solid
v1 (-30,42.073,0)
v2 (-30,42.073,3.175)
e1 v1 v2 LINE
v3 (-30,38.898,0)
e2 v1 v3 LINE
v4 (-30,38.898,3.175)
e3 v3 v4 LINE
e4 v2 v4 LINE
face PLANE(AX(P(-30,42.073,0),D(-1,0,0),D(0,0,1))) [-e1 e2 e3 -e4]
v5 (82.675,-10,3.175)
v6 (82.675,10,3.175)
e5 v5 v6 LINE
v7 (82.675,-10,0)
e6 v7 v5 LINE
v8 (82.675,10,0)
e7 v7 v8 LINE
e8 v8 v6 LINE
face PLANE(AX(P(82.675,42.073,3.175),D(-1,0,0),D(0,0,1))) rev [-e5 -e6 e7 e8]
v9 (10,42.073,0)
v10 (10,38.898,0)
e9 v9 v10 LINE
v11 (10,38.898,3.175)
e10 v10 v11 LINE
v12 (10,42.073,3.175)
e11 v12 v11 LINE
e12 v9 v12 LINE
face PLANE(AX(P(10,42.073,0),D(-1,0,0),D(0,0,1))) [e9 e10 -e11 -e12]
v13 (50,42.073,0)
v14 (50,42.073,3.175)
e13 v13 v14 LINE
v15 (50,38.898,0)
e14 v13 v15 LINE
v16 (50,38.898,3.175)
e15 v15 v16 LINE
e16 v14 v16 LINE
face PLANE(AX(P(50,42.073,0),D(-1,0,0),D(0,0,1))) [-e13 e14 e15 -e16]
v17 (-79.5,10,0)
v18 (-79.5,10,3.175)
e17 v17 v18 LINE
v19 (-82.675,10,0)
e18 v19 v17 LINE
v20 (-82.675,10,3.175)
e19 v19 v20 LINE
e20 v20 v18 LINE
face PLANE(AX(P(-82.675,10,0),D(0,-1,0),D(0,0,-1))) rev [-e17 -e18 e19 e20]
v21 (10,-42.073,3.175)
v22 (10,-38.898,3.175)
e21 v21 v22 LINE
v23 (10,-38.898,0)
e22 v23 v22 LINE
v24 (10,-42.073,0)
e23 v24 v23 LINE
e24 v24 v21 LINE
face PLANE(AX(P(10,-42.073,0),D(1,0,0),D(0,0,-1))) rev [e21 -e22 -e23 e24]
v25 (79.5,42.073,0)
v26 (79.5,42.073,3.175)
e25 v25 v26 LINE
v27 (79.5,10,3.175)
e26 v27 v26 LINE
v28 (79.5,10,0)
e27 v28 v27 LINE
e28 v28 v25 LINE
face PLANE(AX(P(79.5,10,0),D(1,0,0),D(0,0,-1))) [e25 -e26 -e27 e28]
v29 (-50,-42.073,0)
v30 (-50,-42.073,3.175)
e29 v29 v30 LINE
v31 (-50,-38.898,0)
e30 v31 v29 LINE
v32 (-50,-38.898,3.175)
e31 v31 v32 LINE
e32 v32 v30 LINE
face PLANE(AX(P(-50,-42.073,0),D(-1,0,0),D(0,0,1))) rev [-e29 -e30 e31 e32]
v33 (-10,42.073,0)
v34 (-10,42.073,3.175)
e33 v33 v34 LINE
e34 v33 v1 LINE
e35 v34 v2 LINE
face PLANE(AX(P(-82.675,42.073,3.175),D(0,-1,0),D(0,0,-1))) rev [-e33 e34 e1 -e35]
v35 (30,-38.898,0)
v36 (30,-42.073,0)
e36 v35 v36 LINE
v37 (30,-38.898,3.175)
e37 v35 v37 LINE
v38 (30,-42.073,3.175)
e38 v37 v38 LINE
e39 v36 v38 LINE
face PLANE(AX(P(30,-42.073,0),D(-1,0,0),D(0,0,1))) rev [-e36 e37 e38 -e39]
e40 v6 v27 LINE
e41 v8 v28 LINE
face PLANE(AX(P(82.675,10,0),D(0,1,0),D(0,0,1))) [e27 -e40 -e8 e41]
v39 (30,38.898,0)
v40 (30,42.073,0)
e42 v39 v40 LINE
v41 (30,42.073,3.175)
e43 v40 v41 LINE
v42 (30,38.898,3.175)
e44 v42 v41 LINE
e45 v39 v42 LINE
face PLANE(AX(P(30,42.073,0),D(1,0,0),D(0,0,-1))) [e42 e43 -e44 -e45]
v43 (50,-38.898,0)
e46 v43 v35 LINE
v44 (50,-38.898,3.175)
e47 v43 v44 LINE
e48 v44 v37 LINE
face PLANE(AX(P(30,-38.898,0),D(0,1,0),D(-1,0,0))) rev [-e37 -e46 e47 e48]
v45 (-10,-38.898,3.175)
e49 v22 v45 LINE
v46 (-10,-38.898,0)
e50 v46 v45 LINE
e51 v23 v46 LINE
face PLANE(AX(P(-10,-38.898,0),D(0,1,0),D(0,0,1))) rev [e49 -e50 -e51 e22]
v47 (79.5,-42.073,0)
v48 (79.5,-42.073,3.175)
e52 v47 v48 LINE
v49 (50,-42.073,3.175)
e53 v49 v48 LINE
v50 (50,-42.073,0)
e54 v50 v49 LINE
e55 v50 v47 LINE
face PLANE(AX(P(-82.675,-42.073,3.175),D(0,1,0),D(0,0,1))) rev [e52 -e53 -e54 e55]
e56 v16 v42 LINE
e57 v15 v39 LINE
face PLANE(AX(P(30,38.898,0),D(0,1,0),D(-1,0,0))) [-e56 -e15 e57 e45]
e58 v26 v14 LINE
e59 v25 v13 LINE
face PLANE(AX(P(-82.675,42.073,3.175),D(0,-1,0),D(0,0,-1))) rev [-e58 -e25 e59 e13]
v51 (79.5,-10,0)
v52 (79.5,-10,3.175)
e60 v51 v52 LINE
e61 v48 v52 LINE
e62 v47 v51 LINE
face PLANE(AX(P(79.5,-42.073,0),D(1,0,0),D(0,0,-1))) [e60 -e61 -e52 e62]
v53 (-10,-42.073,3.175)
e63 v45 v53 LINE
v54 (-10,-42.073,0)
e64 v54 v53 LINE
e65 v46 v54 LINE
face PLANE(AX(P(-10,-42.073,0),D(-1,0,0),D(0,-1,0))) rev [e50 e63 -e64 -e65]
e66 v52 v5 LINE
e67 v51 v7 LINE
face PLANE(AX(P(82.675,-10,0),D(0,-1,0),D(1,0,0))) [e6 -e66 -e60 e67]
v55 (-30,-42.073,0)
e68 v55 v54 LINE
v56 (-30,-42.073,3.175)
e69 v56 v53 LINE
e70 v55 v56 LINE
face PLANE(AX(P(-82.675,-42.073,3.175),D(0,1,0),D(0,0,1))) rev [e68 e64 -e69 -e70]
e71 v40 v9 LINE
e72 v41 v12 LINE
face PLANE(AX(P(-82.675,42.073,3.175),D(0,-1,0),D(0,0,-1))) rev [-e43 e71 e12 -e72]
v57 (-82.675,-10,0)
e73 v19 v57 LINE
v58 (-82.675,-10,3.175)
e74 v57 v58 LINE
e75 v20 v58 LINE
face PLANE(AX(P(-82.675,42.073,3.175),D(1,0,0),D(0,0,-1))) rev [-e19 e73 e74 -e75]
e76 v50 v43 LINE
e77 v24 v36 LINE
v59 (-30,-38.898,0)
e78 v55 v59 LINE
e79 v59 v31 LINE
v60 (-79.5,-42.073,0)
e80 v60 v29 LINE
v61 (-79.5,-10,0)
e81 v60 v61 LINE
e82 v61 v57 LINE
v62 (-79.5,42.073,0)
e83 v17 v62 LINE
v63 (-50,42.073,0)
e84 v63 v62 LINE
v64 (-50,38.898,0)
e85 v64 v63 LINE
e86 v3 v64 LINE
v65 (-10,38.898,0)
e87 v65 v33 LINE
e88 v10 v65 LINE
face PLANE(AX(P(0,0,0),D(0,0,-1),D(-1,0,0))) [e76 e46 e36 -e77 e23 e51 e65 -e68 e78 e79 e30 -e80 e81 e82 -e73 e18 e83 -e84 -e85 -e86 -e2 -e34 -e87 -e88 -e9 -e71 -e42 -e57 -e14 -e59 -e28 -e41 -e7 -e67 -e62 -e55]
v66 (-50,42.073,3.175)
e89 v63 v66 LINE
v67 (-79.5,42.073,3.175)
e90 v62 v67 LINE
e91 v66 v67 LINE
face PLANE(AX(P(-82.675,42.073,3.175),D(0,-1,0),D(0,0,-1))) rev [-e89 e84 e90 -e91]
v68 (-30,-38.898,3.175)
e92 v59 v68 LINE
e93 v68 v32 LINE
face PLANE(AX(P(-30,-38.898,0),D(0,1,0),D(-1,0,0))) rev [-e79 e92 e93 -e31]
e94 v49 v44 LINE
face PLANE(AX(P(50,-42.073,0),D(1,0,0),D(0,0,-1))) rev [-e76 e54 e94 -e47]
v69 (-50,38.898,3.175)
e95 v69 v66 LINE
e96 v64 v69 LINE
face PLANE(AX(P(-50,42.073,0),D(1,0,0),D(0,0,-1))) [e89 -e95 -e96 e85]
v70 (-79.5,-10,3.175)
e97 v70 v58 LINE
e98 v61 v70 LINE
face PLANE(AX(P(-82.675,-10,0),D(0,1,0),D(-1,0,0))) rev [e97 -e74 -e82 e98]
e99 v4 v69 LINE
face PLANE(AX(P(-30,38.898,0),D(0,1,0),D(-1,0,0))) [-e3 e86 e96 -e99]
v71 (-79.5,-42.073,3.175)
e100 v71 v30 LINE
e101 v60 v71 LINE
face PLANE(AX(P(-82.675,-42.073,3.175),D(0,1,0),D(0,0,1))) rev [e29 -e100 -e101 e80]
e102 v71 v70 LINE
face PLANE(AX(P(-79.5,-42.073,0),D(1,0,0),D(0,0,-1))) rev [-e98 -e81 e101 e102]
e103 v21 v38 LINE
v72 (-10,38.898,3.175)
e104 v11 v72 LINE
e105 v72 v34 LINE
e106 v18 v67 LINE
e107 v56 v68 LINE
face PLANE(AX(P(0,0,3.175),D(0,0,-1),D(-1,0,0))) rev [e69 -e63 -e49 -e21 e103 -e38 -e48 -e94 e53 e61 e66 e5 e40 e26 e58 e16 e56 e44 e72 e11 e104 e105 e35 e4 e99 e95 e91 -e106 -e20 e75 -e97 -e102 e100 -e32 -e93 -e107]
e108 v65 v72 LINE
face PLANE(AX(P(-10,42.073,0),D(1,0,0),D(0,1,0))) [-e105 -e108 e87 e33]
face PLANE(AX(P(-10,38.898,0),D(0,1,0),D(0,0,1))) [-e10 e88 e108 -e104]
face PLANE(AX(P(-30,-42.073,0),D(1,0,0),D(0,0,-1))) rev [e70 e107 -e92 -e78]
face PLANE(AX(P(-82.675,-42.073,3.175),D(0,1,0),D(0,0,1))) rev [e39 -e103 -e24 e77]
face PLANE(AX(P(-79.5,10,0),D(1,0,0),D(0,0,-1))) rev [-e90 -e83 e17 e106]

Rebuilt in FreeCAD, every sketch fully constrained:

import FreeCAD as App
import Part
import Sketcher
Q = App.Units.Quantity

doc = App.newDocument("Part")
body = doc.addObject("PartDesign::Body", "Body")

# Sketch on XY plane
sketch1 = body.newObject("Sketcher::SketchObject", "Sketch")
sketch1.AttachmentSupport = (doc.getObject("XY_Plane"), [""])
sketch1.MapMode = "FlatFace"
sketch1.addGeometry([
    Part.LineSegment(App.Vector(-83, 42, 0), App.Vector(-83, -42, 0)),
    Part.LineSegment(App.Vector(-83, -42, 0), App.Vector(83, -42, 0)),
    Part.LineSegment(App.Vector(83, -42, 0), App.Vector(83, 42, 0)),
    Part.LineSegment(App.Vector(83, 42, 0), App.Vector(-83, 42, 0)),
], False)
sketch1.addConstraint([
    Sketcher.Constraint("Coincident", 0, 2, 1, 1),
    Sketcher.Constraint("Coincident", 1, 2, 2, 1),
    Sketcher.Constraint("Coincident", 2, 2, 3, 1),
    Sketcher.Constraint("Coincident", 3, 2, 0, 1),
    Sketcher.Constraint("Vertical", 0),
    Sketcher.Constraint("Horizontal", 1),
    Sketcher.Constraint("Vertical", 2),
    Sketcher.Constraint("Horizontal", 3),
    Sketcher.Constraint("Symmetric", 0, 2, 2, 2, -1, 1),
    Sketcher.Constraint("DistanceX", 1, 1, 1, 2, Q("165.35 mm")),
    Sketcher.Constraint("DistanceY", 0, 2, 0, 1, Q("84.146 mm")),
])
pad1 = body.newObject("PartDesign::Pad", "Pad")
pad1.Profile = sketch1
pad1.Length = 3.175

# Sketch on XY plane
sketch2 = body.newObject("Sketcher::SketchObject", "Sketch001")
sketch2.AttachmentSupport = (doc.getObject("XY_Plane"), [""])
sketch2.MapMode = "FlatFace"
sketch2.AttachmentOffset = App.Placement(App.Vector(0, 0, 3.175), App.Rotation())
sketch2.addGeometry([
    Part.LineSegment(App.Vector(-82.7, -10, 0), App.Vector(-82.7, -42.1, 0)),  # 0
    Part.LineSegment(App.Vector(-82.7, -42.1, 0), App.Vector(-79.5, -42.1, 0)),  # 1
    Part.LineSegment(App.Vector(-79.5, -42.1, 0), App.Vector(-79.5, -10, 0)),  # 2
    Part.LineSegment(App.Vector(-79.5, -10, 0), App.Vector(-82.7, -10, 0)),  # 3
    Part.LineSegment(App.Vector(-82.7, 42.1, 0), App.Vector(-82.7, 10, 0)),  # 4
    Part.LineSegment(App.Vector(-82.7, 10, 0), App.Vector(-79.5, 10, 0)),  # 5
    Part.LineSegment(App.Vector(-79.5, 10, 0), App.Vector(-79.5, 42.1, 0)),  # 6
    Part.LineSegment(App.Vector(-79.5, 42.1, 0), App.Vector(-82.7, 42.1, 0)),  # 7
], False)
sketch2.addConstraint([
    Sketcher.Constraint("Coincident", 0, 2, 1, 1),
    Sketcher.Constraint("Coincident", 1, 2, 2, 1),
    Sketcher.Constraint("Coincident", 2, 2, 3, 1),
    Sketcher.Constraint("Coincident", 3, 2, 0, 1),
    Sketcher.Constraint("Coincident", 4, 2, 5, 1),
    Sketcher.Constraint("Coincident", 5, 2, 6, 1),
    Sketcher.Constraint("Coincident", 6, 2, 7, 1),
    Sketcher.Constraint("Coincident", 7, 2, 4, 1),
    Sketcher.Constraint("Vertical", 0),
    Sketcher.Constraint("Horizontal", 1),
    Sketcher.Constraint("Vertical", 2),
    Sketcher.Constraint("Horizontal", 3),
    Sketcher.Constraint("Vertical", 4),
    Sketcher.Constraint("Horizontal", 5),
    Sketcher.Constraint("Vertical", 6),
    Sketcher.Constraint("Horizontal", 7),
    Sketcher.Constraint("Symmetric", 3, 2, 4, 2, -1),
    Sketcher.Constraint("Symmetric", 1, 2, 6, 2, -1),
    Sketcher.Constraint("DistanceY", 2, 2, -1, 1, Q("10 mm")),
    Sketcher.Constraint("DistanceX", 1, 2, -1, 1, Q("79.5 mm")),
    Sketcher.Constraint("DistanceX", 1, 1, 1, 2, Q("3.175 mm")),
    Sketcher.Constraint("DistanceY", 0, 2, 0, 1, Q("32.073 mm")),
])
pocket1 = body.newObject("PartDesign::Pocket", "Pocket")
pocket1.Profile = sketch2
pocket1.Type = "ThroughAll"
doc.recompute()

mirrored = body.newObject("PartDesign::Mirrored", "Mirrored")
mirrored.Originals = [pocket1]
mirrored.MirrorPlane = (doc.getObject("YZ_Plane"), [""])
body.Tip = mirrored

# Sketch on XY plane
sketch3 = body.newObject("Sketcher::SketchObject", "Sketch002")
sketch3.AttachmentSupport = (doc.getObject("XY_Plane"), [""])
sketch3.MapMode = "FlatFace"
sketch3.AttachmentOffset = App.Placement(App.Vector(0, 0, 3.175), App.Rotation())
sketch3.addGeometry([
    Part.LineSegment(App.Vector(-10, -38.9, 0), App.Vector(-10, -42.1, 0)),  # 0
    Part.LineSegment(App.Vector(-10, -42.1, 0), App.Vector(10, -42.1, 0)),  # 1
    Part.LineSegment(App.Vector(10, -42.1, 0), App.Vector(10, -38.9, 0)),  # 2
    Part.LineSegment(App.Vector(10, -38.9, 0), App.Vector(-10, -38.9, 0)),  # 3
    Part.LineSegment(App.Vector(30, -38.9, 0), App.Vector(30, -42.1, 0)),  # 4
    Part.LineSegment(App.Vector(30, -42.1, 0), App.Vector(50, -42.1, 0)),  # 5
    Part.LineSegment(App.Vector(50, -42.1, 0), App.Vector(50, -38.9, 0)),  # 6
    Part.LineSegment(App.Vector(50, -38.9, 0), App.Vector(30, -38.9, 0)),  # 7
    Part.LineSegment(App.Vector(-50, -38.9, 0), App.Vector(-50, -42.1, 0)),  # 8
    Part.LineSegment(App.Vector(-50, -42.1, 0), App.Vector(-30, -42.1, 0)),  # 9
    Part.LineSegment(App.Vector(-30, -42.1, 0), App.Vector(-30, -38.9, 0)),  # 10
    Part.LineSegment(App.Vector(-30, -38.9, 0), App.Vector(-50, -38.9, 0)),  # 11
], False)
sketch3.addConstraint([
    Sketcher.Constraint("Coincident", 0, 2, 1, 1),
    Sketcher.Constraint("Coincident", 1, 2, 2, 1),
    Sketcher.Constraint("Coincident", 2, 2, 3, 1),
    Sketcher.Constraint("Coincident", 3, 2, 0, 1),
    Sketcher.Constraint("Coincident", 4, 2, 5, 1),
    Sketcher.Constraint("Coincident", 5, 2, 6, 1),
    Sketcher.Constraint("Coincident", 6, 2, 7, 1),
    Sketcher.Constraint("Coincident", 7, 2, 4, 1),
    Sketcher.Constraint("Coincident", 8, 2, 9, 1),
    Sketcher.Constraint("Coincident", 9, 2, 10, 1),
    Sketcher.Constraint("Coincident", 10, 2, 11, 1),
    Sketcher.Constraint("Coincident", 11, 2, 8, 1),
    Sketcher.Constraint("Vertical", 0),
    Sketcher.Constraint("Horizontal", 1),
    Sketcher.Constraint("Vertical", 2),
    Sketcher.Constraint("Horizontal", 3),
    Sketcher.Constraint("Vertical", 4),
    Sketcher.Constraint("Horizontal", 5),
    Sketcher.Constraint("Vertical", 6),
    Sketcher.Constraint("Horizontal", 7),
    Sketcher.Constraint("Vertical", 8),
    Sketcher.Constraint("Horizontal", 9),
    Sketcher.Constraint("Vertical", 10),
    Sketcher.Constraint("Horizontal", 11),
    Sketcher.Constraint("Symmetric", 5, 2, 8, 2, -2),
    Sketcher.Constraint("Symmetric", 7, 2, 10, 2, -2),
    Sketcher.Constraint("Horizontal", 1, 2, 4, 2),
    Sketcher.Constraint("Horizontal", 3, 2, 6, 2),
    Sketcher.Constraint("Equal", 3, 5),
    Sketcher.Constraint("DistanceX", 1, 1, 1, 2, Q("20 mm")),
    Sketcher.Constraint("DistanceX", 0, 2, -1, 1, Q("10 mm")),
    Sketcher.Constraint("DistanceX", -1, 1, 4, 2, Q("30 mm")),
    Sketcher.Constraint("DistanceY", 0, 2, 0, 1, Q("3.175 mm")),
    Sketcher.Constraint("DistanceY", 0, 2, -1, 1, Q("42.073 mm")),
])
pocket2 = body.newObject("PartDesign::Pocket", "Pocket001")
pocket2.Profile = sketch3
pocket2.Type = "ThroughAll"
doc.recompute()

mirrored2 = body.newObject("PartDesign::Mirrored", "Mirrored001")
mirrored2.Originals = [pocket2]
mirrored2.MirrorPlane = (doc.getObject("XZ_Plane"), [""])
body.Tip = mirrored2

doc.recompute()
